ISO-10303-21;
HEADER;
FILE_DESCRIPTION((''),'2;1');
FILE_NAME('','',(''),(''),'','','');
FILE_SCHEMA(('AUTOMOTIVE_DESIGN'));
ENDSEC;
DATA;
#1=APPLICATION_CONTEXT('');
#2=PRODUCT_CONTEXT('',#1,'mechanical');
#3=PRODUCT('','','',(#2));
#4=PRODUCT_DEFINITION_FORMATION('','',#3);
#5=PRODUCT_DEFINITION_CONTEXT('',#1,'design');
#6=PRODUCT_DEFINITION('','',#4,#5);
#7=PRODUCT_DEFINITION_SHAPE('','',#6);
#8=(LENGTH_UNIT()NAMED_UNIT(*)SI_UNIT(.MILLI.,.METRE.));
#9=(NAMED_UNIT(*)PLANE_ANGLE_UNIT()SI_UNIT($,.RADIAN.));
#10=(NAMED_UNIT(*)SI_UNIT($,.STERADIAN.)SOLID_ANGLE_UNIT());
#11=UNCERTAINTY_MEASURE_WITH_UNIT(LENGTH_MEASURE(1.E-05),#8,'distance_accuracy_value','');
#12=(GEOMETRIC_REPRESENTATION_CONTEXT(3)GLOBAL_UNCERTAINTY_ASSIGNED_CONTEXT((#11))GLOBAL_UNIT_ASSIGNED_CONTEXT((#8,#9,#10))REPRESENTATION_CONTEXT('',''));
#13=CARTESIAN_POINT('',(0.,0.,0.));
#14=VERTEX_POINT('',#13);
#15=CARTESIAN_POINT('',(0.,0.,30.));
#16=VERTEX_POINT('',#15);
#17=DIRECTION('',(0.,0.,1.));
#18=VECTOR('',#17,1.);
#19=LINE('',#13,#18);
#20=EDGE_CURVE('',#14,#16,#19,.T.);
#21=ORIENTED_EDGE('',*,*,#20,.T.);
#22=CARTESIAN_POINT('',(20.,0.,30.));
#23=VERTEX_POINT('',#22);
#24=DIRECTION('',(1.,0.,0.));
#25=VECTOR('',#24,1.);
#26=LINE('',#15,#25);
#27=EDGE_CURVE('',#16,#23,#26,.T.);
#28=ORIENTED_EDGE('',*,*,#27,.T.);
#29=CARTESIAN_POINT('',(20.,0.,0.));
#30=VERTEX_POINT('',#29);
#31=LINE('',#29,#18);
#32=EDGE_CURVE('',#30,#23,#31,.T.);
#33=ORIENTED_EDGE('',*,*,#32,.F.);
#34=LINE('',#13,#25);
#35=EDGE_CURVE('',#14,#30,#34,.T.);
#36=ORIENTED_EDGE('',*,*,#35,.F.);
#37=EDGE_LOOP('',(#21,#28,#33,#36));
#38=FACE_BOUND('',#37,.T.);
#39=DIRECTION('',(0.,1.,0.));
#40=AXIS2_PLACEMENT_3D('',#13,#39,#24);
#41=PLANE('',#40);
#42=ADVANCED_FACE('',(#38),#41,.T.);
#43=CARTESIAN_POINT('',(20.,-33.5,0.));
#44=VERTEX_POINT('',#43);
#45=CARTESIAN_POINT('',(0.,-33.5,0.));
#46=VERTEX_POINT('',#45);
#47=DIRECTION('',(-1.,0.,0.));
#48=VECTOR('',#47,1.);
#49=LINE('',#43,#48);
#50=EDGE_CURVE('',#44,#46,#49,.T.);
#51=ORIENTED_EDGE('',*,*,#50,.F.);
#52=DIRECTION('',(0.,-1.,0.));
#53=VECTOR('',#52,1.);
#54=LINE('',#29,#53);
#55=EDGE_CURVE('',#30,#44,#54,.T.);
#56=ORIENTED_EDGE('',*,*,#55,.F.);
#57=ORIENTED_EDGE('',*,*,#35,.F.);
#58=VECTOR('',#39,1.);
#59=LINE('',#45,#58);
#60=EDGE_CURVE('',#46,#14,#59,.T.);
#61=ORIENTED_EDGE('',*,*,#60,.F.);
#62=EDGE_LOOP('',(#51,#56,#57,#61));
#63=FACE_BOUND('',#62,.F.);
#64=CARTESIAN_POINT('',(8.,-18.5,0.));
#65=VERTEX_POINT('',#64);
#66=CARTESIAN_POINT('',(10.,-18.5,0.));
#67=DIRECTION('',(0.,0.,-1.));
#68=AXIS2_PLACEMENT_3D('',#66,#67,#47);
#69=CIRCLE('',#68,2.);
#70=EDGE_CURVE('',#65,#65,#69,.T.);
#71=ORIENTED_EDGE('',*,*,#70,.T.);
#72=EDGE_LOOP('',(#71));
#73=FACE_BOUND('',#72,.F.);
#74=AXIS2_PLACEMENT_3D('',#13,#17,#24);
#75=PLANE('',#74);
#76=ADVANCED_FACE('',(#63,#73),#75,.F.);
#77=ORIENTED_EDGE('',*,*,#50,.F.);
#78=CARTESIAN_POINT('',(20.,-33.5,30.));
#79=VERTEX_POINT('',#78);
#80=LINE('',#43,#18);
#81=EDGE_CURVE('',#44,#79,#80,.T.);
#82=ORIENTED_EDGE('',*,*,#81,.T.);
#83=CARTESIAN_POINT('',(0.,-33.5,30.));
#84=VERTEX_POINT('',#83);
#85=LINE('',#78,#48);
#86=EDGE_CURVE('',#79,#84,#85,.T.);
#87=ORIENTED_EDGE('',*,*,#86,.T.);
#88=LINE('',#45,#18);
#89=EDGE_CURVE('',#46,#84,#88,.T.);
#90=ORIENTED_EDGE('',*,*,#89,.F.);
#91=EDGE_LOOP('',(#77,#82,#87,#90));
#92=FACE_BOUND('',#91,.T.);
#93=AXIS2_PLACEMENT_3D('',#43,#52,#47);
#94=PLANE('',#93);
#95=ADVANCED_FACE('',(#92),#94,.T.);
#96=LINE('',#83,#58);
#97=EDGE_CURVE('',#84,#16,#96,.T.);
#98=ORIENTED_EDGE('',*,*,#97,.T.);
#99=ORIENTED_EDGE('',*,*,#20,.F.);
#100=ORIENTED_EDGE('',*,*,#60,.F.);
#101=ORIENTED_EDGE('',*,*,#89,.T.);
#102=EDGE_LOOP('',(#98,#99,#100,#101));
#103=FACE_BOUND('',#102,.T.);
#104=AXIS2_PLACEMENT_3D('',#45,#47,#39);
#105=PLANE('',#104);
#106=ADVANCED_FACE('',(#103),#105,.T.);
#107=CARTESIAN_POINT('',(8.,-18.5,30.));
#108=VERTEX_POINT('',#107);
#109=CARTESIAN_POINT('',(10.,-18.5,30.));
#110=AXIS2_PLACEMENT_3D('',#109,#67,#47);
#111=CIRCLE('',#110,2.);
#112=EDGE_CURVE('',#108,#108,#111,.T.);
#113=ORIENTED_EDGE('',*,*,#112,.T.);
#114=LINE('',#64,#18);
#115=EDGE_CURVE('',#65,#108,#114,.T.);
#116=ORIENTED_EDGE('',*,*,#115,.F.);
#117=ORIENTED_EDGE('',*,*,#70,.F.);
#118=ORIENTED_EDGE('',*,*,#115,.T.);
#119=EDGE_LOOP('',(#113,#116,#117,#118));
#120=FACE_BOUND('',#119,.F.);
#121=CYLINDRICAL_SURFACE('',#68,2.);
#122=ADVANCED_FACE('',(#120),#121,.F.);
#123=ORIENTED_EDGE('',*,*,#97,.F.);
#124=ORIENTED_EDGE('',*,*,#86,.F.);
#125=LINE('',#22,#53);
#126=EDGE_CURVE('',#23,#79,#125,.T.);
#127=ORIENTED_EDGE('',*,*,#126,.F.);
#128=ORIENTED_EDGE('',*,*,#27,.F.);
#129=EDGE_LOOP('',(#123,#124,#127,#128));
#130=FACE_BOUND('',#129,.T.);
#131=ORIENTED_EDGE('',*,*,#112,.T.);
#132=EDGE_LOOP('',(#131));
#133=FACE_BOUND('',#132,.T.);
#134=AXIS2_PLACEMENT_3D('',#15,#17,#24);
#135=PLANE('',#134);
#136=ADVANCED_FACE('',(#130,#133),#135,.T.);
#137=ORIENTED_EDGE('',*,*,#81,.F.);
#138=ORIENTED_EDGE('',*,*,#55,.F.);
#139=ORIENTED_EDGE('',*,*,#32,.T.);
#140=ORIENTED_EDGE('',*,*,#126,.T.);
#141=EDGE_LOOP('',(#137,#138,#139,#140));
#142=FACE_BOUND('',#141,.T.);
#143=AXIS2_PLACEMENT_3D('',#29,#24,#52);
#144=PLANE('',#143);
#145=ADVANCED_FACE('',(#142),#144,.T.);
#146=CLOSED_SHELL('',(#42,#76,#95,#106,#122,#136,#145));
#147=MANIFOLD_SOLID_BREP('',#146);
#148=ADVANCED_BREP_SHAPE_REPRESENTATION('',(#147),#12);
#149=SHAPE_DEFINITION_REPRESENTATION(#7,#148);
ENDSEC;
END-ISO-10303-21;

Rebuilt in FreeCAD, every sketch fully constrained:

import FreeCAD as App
import Part
import Sketcher
from FreeCAD import Vector


def add_polygon(sketch, points):
    """Adds a closed chain of lines whose ends are joined by coincident constraints."""
    first, n = sketch.GeometryCount, len(points)
    for a, b in zip(points, points[1:] + points[:1]):
        sketch.addGeometry(Part.LineSegment(App.Vector(*a, 0), App.Vector(*b, 0)), False)
    for i in range(n):
        sketch.addConstraint(Sketcher.Constraint("Coincident", first + i, 2, first + (i + 1) % n, 1))

doc = App.newDocument("Part")
body = doc.addObject("PartDesign::Body", "Body")

# Sketch on XY plane
sketch1 = body.newObject("Sketcher::SketchObject", "Sketch")
sketch1.AttachmentSupport = (doc.getObject("XY_Plane"), [""])
sketch1.MapMode = "FlatFace"
add_polygon(sketch1, [(20, 0), (0, 0), (0, -33.5), (20, -33.5)])  # lines 0-3
sketch1.addConstraint([
    Sketcher.Constraint("Horizontal", 0),
    Sketcher.Constraint("Vertical", 1),
    Sketcher.Constraint("Horizontal", 2),
    Sketcher.Constraint("Vertical", 3),
    Sketcher.Constraint("Coincident", 0, 2, -1, 1),
    Sketcher.Constraint("DistanceX", 0, 2, 0, 1, 20.0),
    Sketcher.Constraint("DistanceY", 1, 2, 1, 1, 33.5),
])
pad1 = body.newObject("PartDesign::Pad", "Pad")
pad1.Profile = sketch1
pad1.Length = 30

# Sketch on XY plane
sketch2 = body.newObject("Sketcher::SketchObject", "Sketch001")
sketch2.AttachmentSupport = (doc.getObject("XY_Plane"), [""])
sketch2.MapMode = "FlatFace"
sketch2.addGeometry(Part.Circle(Vector(10, -18.5, 0), Vector(0, 0, 1), 2), False)
sketch2.addConstraint([
    Sketcher.Constraint("Diameter", 0, 4.0),
    Sketcher.Constraint("DistanceX", -1, 1, 0, 3, 10.0),
    Sketcher.Constraint("DistanceY", 0, 3, -1, 1, 18.5),
])
pocket1 = body.newObject("PartDesign::Pocket", "Pocket")
pocket1.Profile = sketch2
pocket1.Length = 100
pocket1.Reversed = True

doc.recompute()
